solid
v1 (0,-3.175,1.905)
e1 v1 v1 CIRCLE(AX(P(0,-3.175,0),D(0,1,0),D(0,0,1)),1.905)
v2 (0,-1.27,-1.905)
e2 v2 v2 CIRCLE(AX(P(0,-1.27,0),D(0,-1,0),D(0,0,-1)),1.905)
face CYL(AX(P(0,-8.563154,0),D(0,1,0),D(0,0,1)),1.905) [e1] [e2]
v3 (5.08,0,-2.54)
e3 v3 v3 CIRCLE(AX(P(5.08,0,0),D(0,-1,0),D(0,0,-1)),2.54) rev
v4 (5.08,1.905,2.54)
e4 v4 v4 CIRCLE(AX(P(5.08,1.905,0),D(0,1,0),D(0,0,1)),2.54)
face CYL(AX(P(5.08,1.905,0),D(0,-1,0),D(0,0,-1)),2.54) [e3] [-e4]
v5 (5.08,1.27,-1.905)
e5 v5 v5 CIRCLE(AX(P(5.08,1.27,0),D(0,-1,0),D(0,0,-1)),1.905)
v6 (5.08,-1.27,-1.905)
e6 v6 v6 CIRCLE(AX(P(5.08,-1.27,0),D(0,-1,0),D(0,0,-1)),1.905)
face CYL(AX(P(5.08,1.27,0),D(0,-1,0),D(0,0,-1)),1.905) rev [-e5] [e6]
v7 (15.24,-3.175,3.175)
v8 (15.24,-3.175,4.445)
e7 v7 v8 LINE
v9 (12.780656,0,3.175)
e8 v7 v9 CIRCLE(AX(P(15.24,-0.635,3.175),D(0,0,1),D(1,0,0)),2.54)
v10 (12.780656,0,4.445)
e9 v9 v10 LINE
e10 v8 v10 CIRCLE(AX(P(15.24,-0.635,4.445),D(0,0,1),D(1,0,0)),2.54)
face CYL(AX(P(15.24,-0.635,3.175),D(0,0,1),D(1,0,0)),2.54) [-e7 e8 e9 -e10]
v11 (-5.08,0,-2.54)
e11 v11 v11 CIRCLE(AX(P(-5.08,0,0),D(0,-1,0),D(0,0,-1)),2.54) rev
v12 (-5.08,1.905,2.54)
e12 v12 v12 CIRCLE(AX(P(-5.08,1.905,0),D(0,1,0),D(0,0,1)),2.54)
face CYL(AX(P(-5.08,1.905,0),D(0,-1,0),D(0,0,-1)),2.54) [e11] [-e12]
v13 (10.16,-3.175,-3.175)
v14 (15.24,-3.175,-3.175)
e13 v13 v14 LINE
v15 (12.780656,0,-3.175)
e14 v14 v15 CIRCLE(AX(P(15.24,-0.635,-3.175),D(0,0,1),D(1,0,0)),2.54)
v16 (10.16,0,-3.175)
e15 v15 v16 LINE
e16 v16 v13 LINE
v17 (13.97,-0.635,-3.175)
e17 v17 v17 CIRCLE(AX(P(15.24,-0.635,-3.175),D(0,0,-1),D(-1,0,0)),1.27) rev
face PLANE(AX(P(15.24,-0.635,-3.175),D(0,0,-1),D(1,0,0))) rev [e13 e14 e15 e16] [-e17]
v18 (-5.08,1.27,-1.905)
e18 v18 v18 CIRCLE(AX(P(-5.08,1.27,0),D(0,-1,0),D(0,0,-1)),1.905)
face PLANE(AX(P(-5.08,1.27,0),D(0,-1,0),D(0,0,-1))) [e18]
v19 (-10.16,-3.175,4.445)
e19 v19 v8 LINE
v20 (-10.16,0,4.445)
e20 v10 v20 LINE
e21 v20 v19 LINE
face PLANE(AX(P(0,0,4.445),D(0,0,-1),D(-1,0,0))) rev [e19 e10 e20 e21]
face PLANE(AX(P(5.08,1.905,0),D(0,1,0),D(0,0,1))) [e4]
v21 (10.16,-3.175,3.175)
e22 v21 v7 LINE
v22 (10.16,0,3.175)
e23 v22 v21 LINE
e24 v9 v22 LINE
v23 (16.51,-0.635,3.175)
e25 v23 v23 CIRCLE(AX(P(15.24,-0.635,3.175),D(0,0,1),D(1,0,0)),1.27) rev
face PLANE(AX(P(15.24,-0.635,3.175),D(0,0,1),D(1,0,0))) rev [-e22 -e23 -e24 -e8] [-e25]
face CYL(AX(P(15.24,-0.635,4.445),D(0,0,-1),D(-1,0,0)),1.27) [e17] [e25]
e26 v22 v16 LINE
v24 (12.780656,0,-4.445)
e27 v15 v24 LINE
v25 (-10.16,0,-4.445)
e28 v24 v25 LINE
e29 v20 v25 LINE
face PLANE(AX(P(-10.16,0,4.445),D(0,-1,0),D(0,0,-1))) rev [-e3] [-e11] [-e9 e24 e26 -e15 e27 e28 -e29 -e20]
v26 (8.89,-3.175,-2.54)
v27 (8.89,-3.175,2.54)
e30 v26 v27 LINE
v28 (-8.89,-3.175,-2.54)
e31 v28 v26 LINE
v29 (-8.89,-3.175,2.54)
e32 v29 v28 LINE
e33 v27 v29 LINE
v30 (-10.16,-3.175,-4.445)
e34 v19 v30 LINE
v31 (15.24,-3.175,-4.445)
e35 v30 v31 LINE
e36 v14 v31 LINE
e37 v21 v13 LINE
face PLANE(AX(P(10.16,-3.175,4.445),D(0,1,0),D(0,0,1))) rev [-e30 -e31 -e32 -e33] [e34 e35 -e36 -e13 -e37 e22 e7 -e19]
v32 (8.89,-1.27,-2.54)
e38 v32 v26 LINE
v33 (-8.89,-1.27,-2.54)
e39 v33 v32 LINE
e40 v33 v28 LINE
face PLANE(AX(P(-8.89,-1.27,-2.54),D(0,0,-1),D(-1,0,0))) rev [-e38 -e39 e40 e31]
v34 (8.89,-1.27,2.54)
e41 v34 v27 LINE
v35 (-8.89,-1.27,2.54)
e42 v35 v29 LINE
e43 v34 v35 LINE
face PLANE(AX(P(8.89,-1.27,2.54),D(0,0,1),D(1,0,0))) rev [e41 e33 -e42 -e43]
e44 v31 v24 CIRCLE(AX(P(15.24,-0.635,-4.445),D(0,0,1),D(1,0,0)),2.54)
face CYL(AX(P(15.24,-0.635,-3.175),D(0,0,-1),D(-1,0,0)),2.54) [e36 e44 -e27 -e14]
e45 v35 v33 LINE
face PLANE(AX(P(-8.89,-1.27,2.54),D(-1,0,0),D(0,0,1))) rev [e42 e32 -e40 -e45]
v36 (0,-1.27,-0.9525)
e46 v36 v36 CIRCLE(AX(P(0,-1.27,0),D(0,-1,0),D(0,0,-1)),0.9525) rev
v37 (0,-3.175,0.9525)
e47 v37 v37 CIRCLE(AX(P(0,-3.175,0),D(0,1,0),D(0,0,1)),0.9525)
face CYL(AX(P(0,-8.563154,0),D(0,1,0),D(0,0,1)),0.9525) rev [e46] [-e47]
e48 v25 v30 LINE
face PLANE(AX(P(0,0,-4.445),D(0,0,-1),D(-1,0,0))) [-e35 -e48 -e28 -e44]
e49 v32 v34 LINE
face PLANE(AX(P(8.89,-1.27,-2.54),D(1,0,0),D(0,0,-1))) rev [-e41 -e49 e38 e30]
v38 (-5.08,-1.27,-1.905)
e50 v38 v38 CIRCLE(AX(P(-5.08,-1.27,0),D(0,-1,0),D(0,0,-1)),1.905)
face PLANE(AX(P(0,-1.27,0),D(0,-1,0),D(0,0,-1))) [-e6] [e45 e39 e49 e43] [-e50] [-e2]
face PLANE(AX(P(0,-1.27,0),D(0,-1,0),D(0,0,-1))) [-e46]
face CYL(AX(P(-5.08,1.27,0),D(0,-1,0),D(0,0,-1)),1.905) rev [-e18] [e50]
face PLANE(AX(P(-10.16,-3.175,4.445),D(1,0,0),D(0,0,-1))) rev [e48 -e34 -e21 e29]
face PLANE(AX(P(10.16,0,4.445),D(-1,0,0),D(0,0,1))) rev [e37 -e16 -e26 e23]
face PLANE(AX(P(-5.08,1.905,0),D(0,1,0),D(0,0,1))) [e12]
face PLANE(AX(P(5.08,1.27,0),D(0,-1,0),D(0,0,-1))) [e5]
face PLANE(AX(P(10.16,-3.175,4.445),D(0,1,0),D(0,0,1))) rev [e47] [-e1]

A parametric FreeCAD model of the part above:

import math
import FreeCAD as App
import Part
import Sketcher
from FreeCAD import Vector
Q = App.Units.Quantity


def add_polygon(sketch, points):
    """Adds a closed chain of lines whose ends are joined by coincident constraints."""
    first, n = sketch.GeometryCount, len(points)
    for a, b in zip(points, points[1:] + points[:1]):
        sketch.addGeometry(Part.LineSegment(App.Vector(*a, 0), App.Vector(*b, 0)), False)
    for i in range(n):
        sketch.addConstraint(Sketcher.Constraint("Coincident", first + i, 2, first + (i + 1) % n, 1))

doc = App.newDocument("Part")
body = doc.addObject("PartDesign::Body", "Body")

sketch1 = body.newObject("Sketcher::SketchObject", "Sketch")
sketch1.AttachmentSupport = (doc.getObject("XY_Plane"), [""])
sketch1.MapMode = "FlatFace"
add_polygon(sketch1, [(-10.2, 0), (-10.2, -3.2), (10.2, -3.2), (10.2, 0)])
sketch1.addConstraint(Sketcher.Constraint("Vertical", 0))
sketch1.addConstraint(Sketcher.Constraint("Horizontal", 1))
sketch1.addConstraint(Sketcher.Constraint("Vertical", 2))
sketch1.addConstraint(Sketcher.Constraint("Horizontal", 3))
sketch1.addConstraint(Sketcher.Constraint("Symmetric", 2, 2, 3, 2, -1, 1))
sketch1.addConstraint(Sketcher.Constraint("DistanceX", 1, 1, 1, 2, Q("0.8 in")))
sketch1.addConstraint(Sketcher.Constraint("DistanceY", 0, 2, 0, 1, Q("0.125 in")))
pad1 = body.newObject("PartDesign::Pad", "Pad")
pad1.Profile = sketch1
pad1.Length = Q("0.35 in")
pad1.Midplane = True

sketch2 = body.newObject("Sketcher::SketchObject", "Sketch001")
sketch2.AttachmentSupport = (doc.getObject("XZ_Plane"), [""])
sketch2.MapMode = "FlatFace"
sketch2.addGeometry(Part.Circle(Vector(-5.1, 0, 0), Vector(0, 0, 1), 2.5), False)
sketch2.addGeometry(Part.Circle(Vector(5.1, 0, 0), Vector(0, 0, 1), 2.5), False)
sketch2.addConstraint(Sketcher.Constraint("Equal", 0, 1))
sketch2.addConstraint(Sketcher.Constraint("Symmetric", 0, 3, 1, 3, -1, 1))
sketch2.addConstraint(Sketcher.Constraint("PointOnObject", 0, 3, -1))
sketch2.addConstraint(Sketcher.Constraint("Diameter", 0, Q("0.2 in")))
sketch2.addConstraint(Sketcher.Constraint("DistanceX", 0, 3, -1, 1, Q("0.2 in")))
pad2 = body.newObject("PartDesign::Pad", "Pad001")
pad2.Profile = sketch2
pad2.Length = Q("0.075 in")
pad2.Reversed = True

sketch3 = body.newObject("Sketcher::SketchObject", "Sketch002")
sketch3.AttachmentSupport = (doc.getObject("XZ_Plane"), [""])
sketch3.MapMode = "FlatFace"
sketch3.AttachmentOffset = App.Placement(Vector(0, 0, 0.125 * 25.4), App.Rotation())
add_polygon(sketch3, [(-9, 3), (-9, -3), (9, -3), (9, 3)])
sketch3.addConstraint(Sketcher.Constraint("Vertical", 0))
sketch3.addConstraint(Sketcher.Constraint("Horizontal", 1))
sketch3.addConstraint(Sketcher.Constraint("Vertical", 2))
sketch3.addConstraint(Sketcher.Constraint("Horizontal", 3))
sketch3.addConstraint(Sketcher.Constraint("Symmetric", 0, 2, 2, 2, -1, 1))
sketch3.addConstraint(Sketcher.Constraint("DistanceX", 1, 1, 1, 2, Q("0.7 in")))
sketch3.addConstraint(Sketcher.Constraint("DistanceY", 0, 2, 0, 1, Q("0.2 in")))
pocket1 = body.newObject("PartDesign::Pocket", "Pocket")
pocket1.Profile = sketch3
pocket1.Length = Q("0.075 in")

sketch4 = body.newObject("Sketcher::SketchObject", "Sketch003")
sketch4.AttachmentSupport = (doc.getObject("XZ_Plane"), [""])
sketch4.MapMode = "FlatFace"
sketch4.AttachmentOffset = App.Placement(Vector(0, 0, 0.05 * 25.4), App.Rotation())
sketch4.addGeometry(Part.Circle(Vector(-5.1, 0, 0), Vector(0, 0, 1), 1.9), False)
sketch4.addGeometry(Part.Circle(Vector(5.1, 0, 0), Vector(0, 0, 1), 1.9), False)
sketch4.addConstraint(Sketcher.Constraint("Equal", 0, 1))
sketch4.addConstraint(Sketcher.Constraint("Symmetric", 0, 3, 1, 3, -1, 1))
sketch4.addConstraint(Sketcher.Constraint("PointOnObject", 0, 3, -1))
sketch4.addConstraint(Sketcher.Constraint("Diameter", 0, Q("0.15 in")))
sketch4.addConstraint(Sketcher.Constraint("DistanceX", 0, 3, -1, 1, Q("0.2 in")))
pocket2 = body.newObject("PartDesign::Pocket", "Pocket001")
pocket2.Profile = sketch4
pocket2.Length = Q("0.1 in")

sketch5 = body.newObject("Sketcher::SketchObject", "Sketch004")
sketch5.AttachmentSupport = (doc.getObject("XZ_Plane"), [""])
sketch5.MapMode = "FlatFace"
sketch5.AttachmentOffset = App.Placement(Vector(0, 0, 0.05 * 25.4), App.Rotation())
sketch5.addGeometry(Part.Circle(Vector(0, 0, 0), Vector(0, 0, 1), 1.9), False)
sketch5.addGeometry(Part.Circle(Vector(0, 0, 0), Vector(0, 0, 1), 1), False)
sketch5.addConstraint(Sketcher.Constraint("Coincident", 0, 3, -1, 1))
sketch5.addConstraint(Sketcher.Constraint("Coincident", 1, 3, -1, 1))
sketch5.addConstraint(Sketcher.Constraint("Diameter", 0, Q("0.15 in")))
sketch5.addConstraint(Sketcher.Constraint("Diameter", 1, Q("0.075 in")))
pad3 = body.newObject("PartDesign::Pad", "Pad002")
pad3.Profile = sketch5
pad3.Length = Q("0.075 in")

sketch6 = body.newObject("Sketcher::SketchObject", "Sketch005")
sketch6.AttachmentSupport = (doc.getObject("XY_Plane"), [""])
sketch6.MapMode = "FlatFace"
sketch6.AttachmentOffset = App.Placement(Vector(0, 0, 0.175 * 25.4), App.Rotation())
sketch6.addGeometry(Part.LineSegment(Vector(10.2, -3.2, 0), Vector(15.2, -3.2, 0)), False)
sketch6.addGeometry(Part.ArcOfCircle(Part.Circle(Vector(15.2, -0.6, 0), Vector(0, 0, 1), 2.5), math.radians(-90), math.radians(166)), False)
sketch6.addGeometry(Part.LineSegment(Vector(12.8, 0, 0), Vector(10.2, 0, 0)), False)
sketch6.addGeometry(Part.LineSegment(Vector(10.2, 0, 0), Vector(10.2, -3.2, 0)), False)
sketch6.addConstraint(Sketcher.Constraint("Tangent", 0, 2, 1, 1))
sketch6.addConstraint(Sketcher.Constraint("Coincident", 1, 2, 2, 1))
sketch6.addConstraint(Sketcher.Constraint("Coincident", 2, 2, 3, 1))
sketch6.addConstraint(Sketcher.Constraint("Coincident", 3, 2, 0, 1))
sketch6.addConstraint(Sketcher.Constraint("Horizontal", 0))
sketch6.addConstraint(Sketcher.Constraint("Horizontal", 2))
sketch6.addConstraint(Sketcher.Constraint("Vertical", 3))
sketch6.addConstraint(Sketcher.Constraint("PointOnObject", 1, 2, -1))
sketch6.addConstraint(Sketcher.Constraint("Radius", 1, Q("0.1 in")))
sketch6.addConstraint(Sketcher.Constraint("DistanceX", 0, 1, 0, 2, Q("0.2 in")))
sketch6.addConstraint(Sketcher.Constraint("DistanceX", -1, 1, 1, 3, Q("0.6 in")))
sketch6.addConstraint(Sketcher.Constraint("DistanceY", 3, 2, 3, 1, Q("0.125 in")))
pad4 = body.newObject("PartDesign::Pad", "Pad003")
pad4.Profile = sketch6
pad4.Length = Q("0.05 in")
pad4.Reversed = True
doc.recompute()

mirrored = body.newObject("PartDesign::Mirrored", "Mirrored")
mirrored.Originals = [pad4]
mirrored.MirrorPlane = (doc.getObject("XY_Plane"), [""])
body.Tip = mirrored

sketch7 = body.newObject("Sketcher::SketchObject", "Sketch006")
sketch7.AttachmentSupport = (doc.getObject("XY_Plane"), [""])
sketch7.MapMode = "FlatFace"
sketch7.addGeometry(Part.Circle(Vector(15.2, -0.6, 0), Vector(0, 0, 1), 1.3), False)
sketch7.addConstraint(Sketcher.Constraint("Diameter", 0, Q("0.1 in")))
sketch7.addConstraint(Sketcher.Constraint("DistanceX", -1, 1, 0, 3, Q("0.6 in")))
sketch7.addConstraint(Sketcher.Constraint("DistanceY", 0, 3, -1, 1, Q("0.025 in")))
pad5 = body.newObject("PartDesign::Pad", "Pad004")
pad5.Profile = sketch7
pad5.Type = "UpToFirst"

sketch8 = body.newObject("Sketcher::SketchObject", "Sketch007")
sketch8.AttachmentSupport = (doc.getObject("XY_Plane"), [""])
sketch8.MapMode = "FlatFace"
sketch8.addGeometry(Part.Circle(Vector(15.2, -0.6, 0), Vector(0, 0, 1), 1.3), False)
sketch8.addConstraint(Sketcher.Constraint("Diameter", 0, Q("0.1 in")))
sketch8.addConstraint(Sketcher.Constraint("DistanceX", -1, 1, 0, 3, Q("0.6 in")))
sketch8.addConstraint(Sketcher.Constraint("DistanceY", 0, 3, -1, 1, Q("0.025 in")))
pad6 = body.newObject("PartDesign::Pad", "Pad005")
pad6.Profile = sketch8
pad6.Type = "UpToFirst"
pad6.Reversed = True

doc.recompute()
